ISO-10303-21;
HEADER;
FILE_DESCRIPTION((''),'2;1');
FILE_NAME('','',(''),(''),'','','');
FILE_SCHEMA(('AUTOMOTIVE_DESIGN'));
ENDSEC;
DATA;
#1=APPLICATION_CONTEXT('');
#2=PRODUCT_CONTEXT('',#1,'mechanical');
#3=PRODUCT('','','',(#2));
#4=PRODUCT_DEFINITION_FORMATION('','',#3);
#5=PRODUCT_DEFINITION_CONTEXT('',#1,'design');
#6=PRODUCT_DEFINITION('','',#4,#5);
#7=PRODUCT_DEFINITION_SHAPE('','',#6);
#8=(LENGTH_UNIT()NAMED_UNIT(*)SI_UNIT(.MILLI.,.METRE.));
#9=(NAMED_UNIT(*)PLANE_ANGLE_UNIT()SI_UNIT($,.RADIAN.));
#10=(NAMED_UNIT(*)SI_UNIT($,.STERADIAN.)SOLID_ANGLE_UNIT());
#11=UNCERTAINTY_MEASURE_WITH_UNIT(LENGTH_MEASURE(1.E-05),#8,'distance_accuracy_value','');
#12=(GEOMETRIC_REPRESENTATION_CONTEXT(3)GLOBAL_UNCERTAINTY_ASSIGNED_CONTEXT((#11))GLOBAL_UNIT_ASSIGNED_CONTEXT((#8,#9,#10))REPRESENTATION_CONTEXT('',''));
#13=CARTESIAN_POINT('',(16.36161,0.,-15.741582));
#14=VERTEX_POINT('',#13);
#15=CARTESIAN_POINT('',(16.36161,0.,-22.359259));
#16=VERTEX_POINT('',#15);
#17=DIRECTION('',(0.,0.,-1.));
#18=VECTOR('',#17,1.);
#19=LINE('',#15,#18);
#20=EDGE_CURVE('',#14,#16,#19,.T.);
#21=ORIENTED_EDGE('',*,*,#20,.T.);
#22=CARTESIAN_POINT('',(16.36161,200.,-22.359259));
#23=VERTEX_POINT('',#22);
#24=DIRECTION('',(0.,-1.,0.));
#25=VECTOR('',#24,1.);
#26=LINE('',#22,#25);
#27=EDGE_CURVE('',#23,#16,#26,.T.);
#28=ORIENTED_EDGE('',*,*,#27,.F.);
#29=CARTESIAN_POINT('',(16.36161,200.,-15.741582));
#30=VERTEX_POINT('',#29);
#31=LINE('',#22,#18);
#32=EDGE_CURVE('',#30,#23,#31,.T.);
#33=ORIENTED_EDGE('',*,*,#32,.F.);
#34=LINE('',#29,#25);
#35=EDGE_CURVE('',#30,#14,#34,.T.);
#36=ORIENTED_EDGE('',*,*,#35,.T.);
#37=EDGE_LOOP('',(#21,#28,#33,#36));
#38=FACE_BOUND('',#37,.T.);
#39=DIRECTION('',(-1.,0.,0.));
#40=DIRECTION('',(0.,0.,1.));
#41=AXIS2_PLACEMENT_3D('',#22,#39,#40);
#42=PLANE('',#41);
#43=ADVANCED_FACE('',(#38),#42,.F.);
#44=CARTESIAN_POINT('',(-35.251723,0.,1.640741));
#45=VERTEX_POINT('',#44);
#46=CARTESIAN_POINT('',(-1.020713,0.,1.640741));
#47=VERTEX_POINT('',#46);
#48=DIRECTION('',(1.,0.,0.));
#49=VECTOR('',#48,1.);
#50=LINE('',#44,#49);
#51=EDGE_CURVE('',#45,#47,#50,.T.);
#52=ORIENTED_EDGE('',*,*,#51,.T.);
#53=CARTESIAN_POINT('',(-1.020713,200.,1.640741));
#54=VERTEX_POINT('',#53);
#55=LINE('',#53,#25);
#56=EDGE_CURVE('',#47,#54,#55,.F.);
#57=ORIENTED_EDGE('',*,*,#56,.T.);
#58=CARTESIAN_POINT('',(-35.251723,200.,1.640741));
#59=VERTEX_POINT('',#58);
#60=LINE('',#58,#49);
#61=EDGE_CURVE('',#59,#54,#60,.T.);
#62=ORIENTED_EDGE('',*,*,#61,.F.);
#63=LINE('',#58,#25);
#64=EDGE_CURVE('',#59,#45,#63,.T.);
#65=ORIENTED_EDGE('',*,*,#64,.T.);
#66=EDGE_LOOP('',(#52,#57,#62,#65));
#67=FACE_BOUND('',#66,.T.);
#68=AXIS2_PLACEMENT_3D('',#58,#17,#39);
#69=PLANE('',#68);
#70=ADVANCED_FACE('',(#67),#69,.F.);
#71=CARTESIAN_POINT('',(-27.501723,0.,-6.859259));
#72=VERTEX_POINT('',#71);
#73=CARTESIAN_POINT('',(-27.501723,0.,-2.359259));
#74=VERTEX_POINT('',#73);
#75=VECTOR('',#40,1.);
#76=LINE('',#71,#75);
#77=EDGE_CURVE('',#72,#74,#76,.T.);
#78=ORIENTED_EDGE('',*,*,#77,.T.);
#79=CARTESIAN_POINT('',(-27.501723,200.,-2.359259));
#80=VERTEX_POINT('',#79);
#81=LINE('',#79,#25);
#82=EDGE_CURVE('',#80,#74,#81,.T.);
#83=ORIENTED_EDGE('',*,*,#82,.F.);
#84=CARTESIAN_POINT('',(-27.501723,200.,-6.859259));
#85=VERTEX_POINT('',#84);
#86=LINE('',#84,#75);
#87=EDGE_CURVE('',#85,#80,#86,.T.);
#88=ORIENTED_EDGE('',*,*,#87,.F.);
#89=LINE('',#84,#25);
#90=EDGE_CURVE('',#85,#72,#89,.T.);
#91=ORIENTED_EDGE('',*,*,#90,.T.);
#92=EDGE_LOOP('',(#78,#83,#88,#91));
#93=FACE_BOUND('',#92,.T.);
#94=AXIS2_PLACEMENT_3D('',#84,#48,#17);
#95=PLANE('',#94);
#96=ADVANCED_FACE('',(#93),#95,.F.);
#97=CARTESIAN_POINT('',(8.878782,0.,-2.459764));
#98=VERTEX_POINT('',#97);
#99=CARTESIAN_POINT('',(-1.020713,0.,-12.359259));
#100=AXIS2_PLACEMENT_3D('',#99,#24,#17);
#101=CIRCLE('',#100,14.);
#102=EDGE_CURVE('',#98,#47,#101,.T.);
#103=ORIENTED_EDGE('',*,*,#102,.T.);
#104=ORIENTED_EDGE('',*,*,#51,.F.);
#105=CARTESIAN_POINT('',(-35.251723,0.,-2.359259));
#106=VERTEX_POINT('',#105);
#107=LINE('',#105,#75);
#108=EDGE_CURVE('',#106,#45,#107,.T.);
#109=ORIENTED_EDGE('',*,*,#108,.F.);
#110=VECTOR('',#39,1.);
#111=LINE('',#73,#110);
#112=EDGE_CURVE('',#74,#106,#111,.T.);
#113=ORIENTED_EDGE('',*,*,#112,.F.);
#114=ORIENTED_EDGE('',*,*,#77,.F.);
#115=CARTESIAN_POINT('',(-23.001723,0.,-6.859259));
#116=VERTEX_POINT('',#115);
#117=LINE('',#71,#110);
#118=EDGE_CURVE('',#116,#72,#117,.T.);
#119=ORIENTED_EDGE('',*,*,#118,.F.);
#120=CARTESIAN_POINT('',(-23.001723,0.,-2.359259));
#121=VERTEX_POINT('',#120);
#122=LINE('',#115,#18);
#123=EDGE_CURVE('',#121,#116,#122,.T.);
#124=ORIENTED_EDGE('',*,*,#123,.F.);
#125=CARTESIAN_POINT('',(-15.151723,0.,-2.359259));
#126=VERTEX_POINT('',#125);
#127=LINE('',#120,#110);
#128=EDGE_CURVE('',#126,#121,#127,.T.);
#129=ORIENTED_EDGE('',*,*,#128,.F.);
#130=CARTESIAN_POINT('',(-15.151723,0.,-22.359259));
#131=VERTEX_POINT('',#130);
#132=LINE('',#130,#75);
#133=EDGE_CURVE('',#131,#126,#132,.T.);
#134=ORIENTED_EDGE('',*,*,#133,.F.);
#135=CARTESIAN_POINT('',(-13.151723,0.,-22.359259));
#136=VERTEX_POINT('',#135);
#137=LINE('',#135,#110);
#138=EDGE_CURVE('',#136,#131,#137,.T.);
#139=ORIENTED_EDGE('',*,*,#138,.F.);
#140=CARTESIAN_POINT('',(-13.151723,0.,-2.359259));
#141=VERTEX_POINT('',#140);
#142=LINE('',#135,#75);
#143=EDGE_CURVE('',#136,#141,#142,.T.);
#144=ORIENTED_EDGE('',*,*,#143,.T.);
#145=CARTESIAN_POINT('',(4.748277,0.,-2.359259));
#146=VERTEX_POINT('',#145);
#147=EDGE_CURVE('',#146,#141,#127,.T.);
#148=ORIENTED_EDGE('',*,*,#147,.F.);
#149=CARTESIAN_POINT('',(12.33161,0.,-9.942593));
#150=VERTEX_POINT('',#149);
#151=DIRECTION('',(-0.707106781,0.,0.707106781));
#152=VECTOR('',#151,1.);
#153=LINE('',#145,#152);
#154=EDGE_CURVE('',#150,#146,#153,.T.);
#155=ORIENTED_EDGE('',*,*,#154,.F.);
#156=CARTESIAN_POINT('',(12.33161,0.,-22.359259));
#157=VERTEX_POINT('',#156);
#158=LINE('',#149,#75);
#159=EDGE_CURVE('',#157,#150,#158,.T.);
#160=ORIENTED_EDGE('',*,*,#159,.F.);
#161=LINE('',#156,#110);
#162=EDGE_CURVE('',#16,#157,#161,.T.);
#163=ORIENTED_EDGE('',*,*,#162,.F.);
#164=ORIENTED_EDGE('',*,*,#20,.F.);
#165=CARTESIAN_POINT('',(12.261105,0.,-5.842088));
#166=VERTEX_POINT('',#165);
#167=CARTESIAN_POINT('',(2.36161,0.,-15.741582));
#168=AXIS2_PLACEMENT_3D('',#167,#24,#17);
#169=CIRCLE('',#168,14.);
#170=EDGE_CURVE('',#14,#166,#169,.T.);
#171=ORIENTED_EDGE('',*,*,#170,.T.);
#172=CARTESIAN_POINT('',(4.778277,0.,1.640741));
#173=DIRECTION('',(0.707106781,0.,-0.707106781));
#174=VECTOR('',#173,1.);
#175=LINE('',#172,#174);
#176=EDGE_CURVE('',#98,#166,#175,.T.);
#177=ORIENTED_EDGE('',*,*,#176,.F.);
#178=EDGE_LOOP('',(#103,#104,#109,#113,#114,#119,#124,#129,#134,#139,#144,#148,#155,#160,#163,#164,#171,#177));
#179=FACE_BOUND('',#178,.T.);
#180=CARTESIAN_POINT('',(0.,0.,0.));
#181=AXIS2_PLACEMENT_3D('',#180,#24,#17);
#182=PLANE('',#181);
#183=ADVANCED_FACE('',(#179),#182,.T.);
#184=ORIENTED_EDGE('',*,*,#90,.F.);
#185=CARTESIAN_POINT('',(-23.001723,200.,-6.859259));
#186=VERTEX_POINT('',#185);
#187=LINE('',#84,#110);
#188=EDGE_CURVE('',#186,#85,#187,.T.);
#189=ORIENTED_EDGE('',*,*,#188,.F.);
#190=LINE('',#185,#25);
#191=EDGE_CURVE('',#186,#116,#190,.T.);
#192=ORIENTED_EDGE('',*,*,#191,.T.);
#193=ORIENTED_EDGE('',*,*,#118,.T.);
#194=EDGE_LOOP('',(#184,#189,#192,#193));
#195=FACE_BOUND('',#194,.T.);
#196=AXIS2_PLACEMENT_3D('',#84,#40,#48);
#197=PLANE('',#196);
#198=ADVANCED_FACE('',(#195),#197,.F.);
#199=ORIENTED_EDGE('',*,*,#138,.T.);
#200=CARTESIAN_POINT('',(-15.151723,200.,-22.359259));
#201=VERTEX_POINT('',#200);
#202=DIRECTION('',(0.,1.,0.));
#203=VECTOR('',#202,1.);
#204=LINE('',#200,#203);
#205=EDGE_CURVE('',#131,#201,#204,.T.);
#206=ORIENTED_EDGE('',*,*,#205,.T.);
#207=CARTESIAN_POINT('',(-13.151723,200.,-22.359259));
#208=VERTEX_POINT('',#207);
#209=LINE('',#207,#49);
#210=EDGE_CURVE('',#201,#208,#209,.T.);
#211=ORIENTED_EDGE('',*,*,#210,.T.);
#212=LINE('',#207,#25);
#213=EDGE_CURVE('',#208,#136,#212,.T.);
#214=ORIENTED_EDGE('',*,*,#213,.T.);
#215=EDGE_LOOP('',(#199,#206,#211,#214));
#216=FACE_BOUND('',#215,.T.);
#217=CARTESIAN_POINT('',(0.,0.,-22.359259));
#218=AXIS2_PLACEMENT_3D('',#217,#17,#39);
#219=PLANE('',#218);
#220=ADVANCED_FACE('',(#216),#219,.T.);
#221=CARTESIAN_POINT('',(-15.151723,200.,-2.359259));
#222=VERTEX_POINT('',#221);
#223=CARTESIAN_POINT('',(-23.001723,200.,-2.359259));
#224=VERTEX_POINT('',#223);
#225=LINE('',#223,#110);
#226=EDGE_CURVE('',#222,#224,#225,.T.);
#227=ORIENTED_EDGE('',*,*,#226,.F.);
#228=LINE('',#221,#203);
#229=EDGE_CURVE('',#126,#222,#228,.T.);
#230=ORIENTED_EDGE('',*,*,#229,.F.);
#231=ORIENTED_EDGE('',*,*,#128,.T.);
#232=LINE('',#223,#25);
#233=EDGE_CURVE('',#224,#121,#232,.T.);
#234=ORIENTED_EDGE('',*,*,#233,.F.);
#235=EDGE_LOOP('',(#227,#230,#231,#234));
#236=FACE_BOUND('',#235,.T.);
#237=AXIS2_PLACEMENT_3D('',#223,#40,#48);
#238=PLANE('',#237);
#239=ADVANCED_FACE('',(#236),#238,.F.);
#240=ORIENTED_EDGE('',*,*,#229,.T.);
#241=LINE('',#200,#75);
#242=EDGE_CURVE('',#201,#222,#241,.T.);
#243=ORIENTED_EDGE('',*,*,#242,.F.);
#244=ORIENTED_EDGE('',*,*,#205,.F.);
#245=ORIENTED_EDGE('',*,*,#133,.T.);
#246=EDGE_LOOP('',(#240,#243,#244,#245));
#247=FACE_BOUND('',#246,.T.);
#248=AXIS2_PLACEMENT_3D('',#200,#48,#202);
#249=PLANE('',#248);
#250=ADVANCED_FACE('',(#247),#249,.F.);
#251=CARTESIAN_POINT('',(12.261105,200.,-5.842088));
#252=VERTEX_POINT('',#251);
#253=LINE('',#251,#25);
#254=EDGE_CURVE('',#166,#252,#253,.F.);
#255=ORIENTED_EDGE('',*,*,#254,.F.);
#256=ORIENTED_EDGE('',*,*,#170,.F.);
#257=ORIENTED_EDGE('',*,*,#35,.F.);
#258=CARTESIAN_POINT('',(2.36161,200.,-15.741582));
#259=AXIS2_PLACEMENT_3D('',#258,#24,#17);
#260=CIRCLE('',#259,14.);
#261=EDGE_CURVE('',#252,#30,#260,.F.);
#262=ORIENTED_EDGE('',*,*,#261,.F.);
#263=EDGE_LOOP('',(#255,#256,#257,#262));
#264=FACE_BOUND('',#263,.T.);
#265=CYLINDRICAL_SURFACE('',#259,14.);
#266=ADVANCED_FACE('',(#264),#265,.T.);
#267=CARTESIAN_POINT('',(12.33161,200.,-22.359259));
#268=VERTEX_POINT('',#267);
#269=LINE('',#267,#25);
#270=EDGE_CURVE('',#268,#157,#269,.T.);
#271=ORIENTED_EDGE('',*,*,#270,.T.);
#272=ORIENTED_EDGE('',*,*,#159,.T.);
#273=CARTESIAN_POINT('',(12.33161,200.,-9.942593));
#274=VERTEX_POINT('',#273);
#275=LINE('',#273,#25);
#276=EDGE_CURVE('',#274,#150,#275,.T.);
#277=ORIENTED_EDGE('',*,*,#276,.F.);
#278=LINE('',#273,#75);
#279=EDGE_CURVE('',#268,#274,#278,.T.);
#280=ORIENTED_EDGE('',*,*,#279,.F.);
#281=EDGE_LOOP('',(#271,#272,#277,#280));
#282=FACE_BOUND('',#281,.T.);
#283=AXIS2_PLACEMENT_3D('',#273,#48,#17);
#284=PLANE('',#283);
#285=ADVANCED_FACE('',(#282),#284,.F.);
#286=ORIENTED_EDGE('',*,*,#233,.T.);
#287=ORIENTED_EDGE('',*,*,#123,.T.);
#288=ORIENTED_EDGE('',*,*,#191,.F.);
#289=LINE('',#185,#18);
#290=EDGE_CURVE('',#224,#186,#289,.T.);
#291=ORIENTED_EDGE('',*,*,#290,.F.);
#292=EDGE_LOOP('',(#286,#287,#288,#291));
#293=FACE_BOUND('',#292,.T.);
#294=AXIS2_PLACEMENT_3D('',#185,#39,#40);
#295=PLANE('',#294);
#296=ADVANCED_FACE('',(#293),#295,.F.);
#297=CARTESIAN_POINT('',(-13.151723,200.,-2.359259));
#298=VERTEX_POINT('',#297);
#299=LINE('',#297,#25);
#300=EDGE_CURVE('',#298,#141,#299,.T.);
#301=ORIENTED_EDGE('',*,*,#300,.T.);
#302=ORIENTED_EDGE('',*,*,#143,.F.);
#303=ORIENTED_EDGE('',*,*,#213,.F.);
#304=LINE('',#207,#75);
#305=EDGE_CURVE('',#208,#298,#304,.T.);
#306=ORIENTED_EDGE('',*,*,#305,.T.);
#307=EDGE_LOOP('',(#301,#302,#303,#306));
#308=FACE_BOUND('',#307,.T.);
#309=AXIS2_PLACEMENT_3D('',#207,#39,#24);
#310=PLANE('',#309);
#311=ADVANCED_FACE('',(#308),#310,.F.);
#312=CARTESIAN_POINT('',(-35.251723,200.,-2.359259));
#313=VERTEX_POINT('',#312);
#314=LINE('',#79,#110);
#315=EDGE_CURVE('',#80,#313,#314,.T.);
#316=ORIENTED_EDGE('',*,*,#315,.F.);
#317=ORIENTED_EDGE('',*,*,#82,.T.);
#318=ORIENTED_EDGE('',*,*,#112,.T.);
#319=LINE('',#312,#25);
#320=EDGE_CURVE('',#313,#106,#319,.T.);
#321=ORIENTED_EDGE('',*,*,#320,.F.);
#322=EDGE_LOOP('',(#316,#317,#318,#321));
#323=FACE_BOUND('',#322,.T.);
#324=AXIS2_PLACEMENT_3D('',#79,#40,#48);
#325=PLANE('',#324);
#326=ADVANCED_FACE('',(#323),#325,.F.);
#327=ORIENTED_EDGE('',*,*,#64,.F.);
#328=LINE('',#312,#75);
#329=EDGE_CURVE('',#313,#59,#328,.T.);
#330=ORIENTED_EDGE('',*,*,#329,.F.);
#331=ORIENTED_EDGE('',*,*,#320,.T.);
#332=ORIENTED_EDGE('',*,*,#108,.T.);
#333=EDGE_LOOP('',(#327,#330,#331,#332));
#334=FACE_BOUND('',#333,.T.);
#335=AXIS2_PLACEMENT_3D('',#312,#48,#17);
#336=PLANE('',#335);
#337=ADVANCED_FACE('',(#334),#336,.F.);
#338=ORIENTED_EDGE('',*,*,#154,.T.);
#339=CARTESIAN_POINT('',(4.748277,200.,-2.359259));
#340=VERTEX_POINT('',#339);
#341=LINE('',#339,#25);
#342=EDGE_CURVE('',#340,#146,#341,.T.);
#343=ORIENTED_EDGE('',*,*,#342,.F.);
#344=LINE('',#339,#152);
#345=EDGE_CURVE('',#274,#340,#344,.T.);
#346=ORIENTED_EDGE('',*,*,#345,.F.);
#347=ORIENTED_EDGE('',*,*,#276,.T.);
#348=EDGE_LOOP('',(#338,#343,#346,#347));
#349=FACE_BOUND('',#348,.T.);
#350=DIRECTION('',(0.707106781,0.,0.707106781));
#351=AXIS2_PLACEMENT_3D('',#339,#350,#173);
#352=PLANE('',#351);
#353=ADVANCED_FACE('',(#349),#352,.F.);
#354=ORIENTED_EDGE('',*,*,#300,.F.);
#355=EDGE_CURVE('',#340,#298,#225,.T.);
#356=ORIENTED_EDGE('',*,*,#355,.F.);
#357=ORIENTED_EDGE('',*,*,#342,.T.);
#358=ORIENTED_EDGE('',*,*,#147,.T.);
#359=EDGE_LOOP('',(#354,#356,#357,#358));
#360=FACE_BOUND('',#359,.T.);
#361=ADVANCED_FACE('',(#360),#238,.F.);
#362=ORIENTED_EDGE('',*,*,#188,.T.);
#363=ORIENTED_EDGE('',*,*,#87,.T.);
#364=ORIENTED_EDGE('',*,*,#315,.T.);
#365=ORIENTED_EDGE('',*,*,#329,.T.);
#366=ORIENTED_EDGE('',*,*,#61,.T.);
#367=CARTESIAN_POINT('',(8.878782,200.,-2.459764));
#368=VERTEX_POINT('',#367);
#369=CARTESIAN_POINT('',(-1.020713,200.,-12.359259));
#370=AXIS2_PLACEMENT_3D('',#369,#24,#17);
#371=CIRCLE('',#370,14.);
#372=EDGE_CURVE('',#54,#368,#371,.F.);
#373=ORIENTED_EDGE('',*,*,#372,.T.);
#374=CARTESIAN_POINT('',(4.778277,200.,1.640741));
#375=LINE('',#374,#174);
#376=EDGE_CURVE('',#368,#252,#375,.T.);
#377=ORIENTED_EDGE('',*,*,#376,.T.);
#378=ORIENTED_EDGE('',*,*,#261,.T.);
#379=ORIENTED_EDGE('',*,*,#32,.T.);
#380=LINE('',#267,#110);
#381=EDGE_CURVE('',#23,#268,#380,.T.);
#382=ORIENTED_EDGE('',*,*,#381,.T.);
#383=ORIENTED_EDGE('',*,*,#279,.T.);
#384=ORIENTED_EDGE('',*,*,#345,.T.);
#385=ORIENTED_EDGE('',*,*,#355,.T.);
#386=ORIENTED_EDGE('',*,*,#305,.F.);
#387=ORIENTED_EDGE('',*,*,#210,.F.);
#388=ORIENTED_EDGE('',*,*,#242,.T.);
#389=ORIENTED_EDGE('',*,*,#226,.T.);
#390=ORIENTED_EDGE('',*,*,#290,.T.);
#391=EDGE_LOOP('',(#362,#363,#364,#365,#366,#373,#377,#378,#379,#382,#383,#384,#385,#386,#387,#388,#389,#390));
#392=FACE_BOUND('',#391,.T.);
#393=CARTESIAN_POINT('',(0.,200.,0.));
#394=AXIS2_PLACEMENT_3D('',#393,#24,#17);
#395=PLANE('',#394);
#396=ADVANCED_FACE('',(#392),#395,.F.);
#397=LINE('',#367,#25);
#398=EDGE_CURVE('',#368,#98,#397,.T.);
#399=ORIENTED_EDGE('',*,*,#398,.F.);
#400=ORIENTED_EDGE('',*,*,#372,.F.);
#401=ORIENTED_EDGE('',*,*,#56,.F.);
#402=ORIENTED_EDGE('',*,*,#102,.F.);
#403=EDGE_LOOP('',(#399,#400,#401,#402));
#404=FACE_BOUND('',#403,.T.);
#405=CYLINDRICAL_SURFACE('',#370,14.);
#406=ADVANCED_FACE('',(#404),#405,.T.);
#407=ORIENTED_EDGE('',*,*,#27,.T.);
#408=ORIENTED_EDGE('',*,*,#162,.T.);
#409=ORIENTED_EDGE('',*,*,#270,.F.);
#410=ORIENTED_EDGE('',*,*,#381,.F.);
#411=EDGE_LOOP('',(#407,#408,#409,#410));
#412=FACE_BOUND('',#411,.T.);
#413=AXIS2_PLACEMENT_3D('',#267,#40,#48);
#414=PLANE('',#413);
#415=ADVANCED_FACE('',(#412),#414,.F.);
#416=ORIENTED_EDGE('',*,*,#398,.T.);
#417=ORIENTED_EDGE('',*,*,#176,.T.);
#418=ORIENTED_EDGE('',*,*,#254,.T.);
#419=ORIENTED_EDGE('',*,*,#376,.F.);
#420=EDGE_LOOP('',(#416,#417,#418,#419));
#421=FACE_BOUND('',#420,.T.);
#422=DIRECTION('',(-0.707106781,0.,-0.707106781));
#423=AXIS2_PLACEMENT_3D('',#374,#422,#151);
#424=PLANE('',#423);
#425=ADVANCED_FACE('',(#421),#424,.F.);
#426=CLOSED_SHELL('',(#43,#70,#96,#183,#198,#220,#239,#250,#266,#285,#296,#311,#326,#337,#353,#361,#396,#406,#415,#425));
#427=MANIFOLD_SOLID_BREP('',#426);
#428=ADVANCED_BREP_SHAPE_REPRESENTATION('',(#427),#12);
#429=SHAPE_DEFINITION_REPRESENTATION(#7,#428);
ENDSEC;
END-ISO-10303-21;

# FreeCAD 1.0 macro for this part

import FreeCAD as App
import Part
import Sketcher
from FreeCAD import Vector
Q = App.Units.Quantity


def edges_at(feature, points):
    """Names of the edges that pass closest to the given points."""
    edges = feature.Shape.Edges
    near = lambda p: min(range(len(edges)), key=lambda i: edges[i].distToShape(Part.Vertex(*p))[0])
    return sorted({f"Edge{near(p) + 1}" for p in points})

doc = App.newDocument("Part")
body = doc.addObject("PartDesign::Body", "Body")

sketch1 = body.newObject("Sketcher::SketchObject", "Sketch")
sketch1.AttachmentSupport = (doc.getObject("XZ_Plane"), [""])
sketch1.MapMode = "FlatFace"
sketch1.addGeometry([
    Part.LineSegment(Vector(-23, -6.9, 0), Vector(-27.5, -6.9, 0)),
    Part.LineSegment(Vector(-27.5, -6.9, 0), Vector(-27.5, -2.4, 0)),
    Part.LineSegment(Vector(-27.5, -2.4, 0), Vector(-35.3, -2.4, 0)),
    Part.LineSegment(Vector(-35.3, -2.4, 0), Vector(-35.3, 1.6, 0)),
    Part.LineSegment(Vector(-35.3, 1.6, 0), Vector(4.8, 1.6, 0)),
    Part.LineSegment(Vector(4.8, 1.6, 0), Vector(16.4, -9.9, 0)),
    Part.LineSegment(Vector(16.4, -9.9, 0), Vector(16.4, -22.4, 0)),
    Part.LineSegment(Vector(16.4, -22.4, 0), Vector(12.3, -22.4, 0)),
    Part.LineSegment(Vector(12.3, -22.4, 0), Vector(12.3, -9.9, 0)),
    Part.LineSegment(Vector(12.3, -9.9, 0), Vector(4.7, -2.4, 0)),
    Part.LineSegment(Vector(4.7, -2.4, 0), Vector(-23, -2.4, 0)),
    Part.LineSegment(Vector(-23, -2.4, 0), Vector(-23, -6.9, 0)),
], False)
sketch1.addConstraint([
    Sketcher.Constraint("Coincident", 0, 2, 1, 1),
    Sketcher.Constraint("Coincident", 1, 2, 2, 1),
    Sketcher.Constraint("Coincident", 2, 2, 3, 1),
    Sketcher.Constraint("Coincident", 3, 2, 4, 1),
    Sketcher.Constraint("Coincident", 4, 2, 5, 1),
    Sketcher.Constraint("Coincident", 5, 2, 6, 1),
    Sketcher.Constraint("Coincident", 6, 2, 7, 1),
    Sketcher.Constraint("Coincident", 7, 2, 8, 1),
    Sketcher.Constraint("Coincident", 8, 2, 9, 1),
    Sketcher.Constraint("Coincident", 9, 2, 10, 1),
    Sketcher.Constraint("Coincident", 10, 2, 11, 1),
    Sketcher.Constraint("Coincident", 11, 2, 0, 1),
    Sketcher.Constraint("Horizontal", 0),
    Sketcher.Constraint("Vertical", 1),
    Sketcher.Constraint("Horizontal", 2),
    Sketcher.Constraint("Vertical", 3),
    Sketcher.Constraint("Horizontal", 4),
    Sketcher.Constraint("Vertical", 6),
    Sketcher.Constraint("Horizontal", 7),
    Sketcher.Constraint("Vertical", 8),
    Sketcher.Constraint("Horizontal", 10),
    Sketcher.Constraint("Vertical", 11),
    Sketcher.Constraint("Parallel", 5, 9),
    Sketcher.Constraint("Horizontal", 5, 2, 8, 2),
    Sketcher.Constraint("Horizontal", 2, 2, 9, 2),
    Sketcher.Constraint("Equal", 0, 1),
    Sketcher.Constraint("DistanceY", 3, 1, 3, 2, Q("4 mm")),
    Sketcher.Constraint("Angle", 5, Q("-45 deg")),
    Sketcher.Constraint("DistanceX", 0, 2, 0, 1, Q("4.5 mm")),
    Sketcher.Constraint("DistanceY", 6, 2, 4, 2, Q("24 mm")),
    Sketcher.Constraint("DistanceX", 2, 2, 2, 1, Q("7.75 mm")),
    Sketcher.Constraint("DistanceX", 4, 1, 4, 2, Q("40.03 mm")),
    Sketcher.Constraint("DistanceX", 7, 2, 7, 1, Q("4.03 mm")),
    Sketcher.Constraint("DistanceY", 6, 2, 6, 1, Q("12.416667 mm")),
    Sketcher.Constraint("DistanceY", 0, 2, -1, 1, Q("6.859259 mm")),
    Sketcher.Constraint("DistanceX", -1, 1, 5, 2, Q("16.36161 mm")),
])
pad1 = body.newObject("PartDesign::Pad", "Pad")
pad1.Profile = sketch1
pad1.Length = 200
pad1.Reversed = True
doc.recompute()

fillet = body.newObject("PartDesign::Fillet", "Fillet")
fillet.Base = (pad1, edges_at(pad1, [(16.362, 100, -9.943), (4.778, 100, 1.641)]))
fillet.Radius = 14

sketch2 = body.newObject("Sketcher::SketchObject", "Sketch001")
sketch2.AttachmentSupport = (doc.getObject("XY_Plane"), [""])
sketch2.MapMode = "FlatFace"
sketch2.AttachmentOffset = App.Placement(Vector(0, 0, -2.359259), App.Rotation())
sketch2.addGeometry([
    Part.LineSegment(Vector(-13.2, 200, 0), Vector(-13.2, 0, 0)),
    Part.LineSegment(Vector(-13.2, 0, 0), Vector(-15.2, 0, 0)),
    Part.LineSegment(Vector(-15.2, 0, 0), Vector(-15.2, 200, 0)),
    Part.LineSegment(Vector(-15.2, 200, 0), Vector(-13.2, 200, 0)),
], False)
sketch2.addConstraint([
    Sketcher.Constraint("Coincident", 0, 2, 1, 1),
    Sketcher.Constraint("Coincident", 1, 2, 2, 1),
    Sketcher.Constraint("Coincident", 2, 2, 3, 1),
    Sketcher.Constraint("Coincident", 3, 2, 0, 1),
    Sketcher.Constraint("Vertical", 0),
    Sketcher.Constraint("Horizontal", 1),
    Sketcher.Constraint("Vertical", 2),
    Sketcher.Constraint("Horizontal", 3),
    Sketcher.Constraint("PointOnObject", 0, 2, -1),
    Sketcher.Constraint("DistanceX", 1, 2, 1, 1, Q("2 mm")),
    Sketcher.Constraint("DistanceY", 0, 2, 0, 1, Q("200 mm")),
    Sketcher.Constraint("DistanceX", 0, 2, -1, 1, Q("13.151723 mm")),
])
pad2 = body.newObject("PartDesign::Pad", "Pad001")
pad2.Profile = sketch2
pad2.Length = 20
pad2.Reversed = True

doc.recompute()
